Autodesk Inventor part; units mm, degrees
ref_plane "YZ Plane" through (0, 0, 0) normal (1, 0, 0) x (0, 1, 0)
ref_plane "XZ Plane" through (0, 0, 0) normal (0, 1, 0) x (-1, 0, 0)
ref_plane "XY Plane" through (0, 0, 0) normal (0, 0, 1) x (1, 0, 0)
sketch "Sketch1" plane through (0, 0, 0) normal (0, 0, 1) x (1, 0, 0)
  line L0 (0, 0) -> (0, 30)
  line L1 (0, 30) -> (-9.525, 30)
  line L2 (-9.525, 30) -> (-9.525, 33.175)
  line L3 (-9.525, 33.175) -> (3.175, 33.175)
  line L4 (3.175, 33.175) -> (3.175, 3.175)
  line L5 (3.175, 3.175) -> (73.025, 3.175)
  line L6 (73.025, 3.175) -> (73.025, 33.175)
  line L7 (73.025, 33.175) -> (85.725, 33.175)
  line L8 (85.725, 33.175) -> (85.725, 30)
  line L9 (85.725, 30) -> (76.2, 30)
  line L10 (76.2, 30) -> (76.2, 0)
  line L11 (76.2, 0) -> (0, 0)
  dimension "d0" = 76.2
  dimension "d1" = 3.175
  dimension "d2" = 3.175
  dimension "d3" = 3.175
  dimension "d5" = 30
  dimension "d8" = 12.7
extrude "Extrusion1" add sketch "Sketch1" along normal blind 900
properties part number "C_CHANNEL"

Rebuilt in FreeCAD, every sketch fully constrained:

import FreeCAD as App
import Part
import Sketcher
Q = App.Units.Quantity


def add_polygon(sketch, points):
    """Adds a closed chain of lines whose ends are joined by coincident constraints."""
    first, n = sketch.GeometryCount, len(points)
    for a, b in zip(points, points[1:] + points[:1]):
        sketch.addGeometry(Part.LineSegment(App.Vector(*a, 0), App.Vector(*b, 0)), False)
    for i in range(n):
        sketch.addConstraint(Sketcher.Constraint("Coincident", first + i, 2, first + (i + 1) % n, 1))

doc = App.newDocument("Part")
body = doc.addObject("PartDesign::Body", "Body")

sketch1 = body.newObject("Sketcher::SketchObject", "Sketch")
sketch1.AttachmentSupport = (doc.getObject("XY_Plane"), [""])
sketch1.MapMode = "FlatFace"
add_polygon(sketch1, [(0, 30), (0, 0), (76.2, 0), (76.2, 30), (85.725, 30), (85.725, 33.175), (73.025, 33.175), (73.025, 3.175), (3.175, 3.175), (3.175, 33.175), (-9.525, 33.175), (-9.525, 30)])
sketch1.addConstraint(Sketcher.Constraint("Vertical", 0))
sketch1.addConstraint(Sketcher.Constraint("Horizontal", 1))
sketch1.addConstraint(Sketcher.Constraint("Vertical", 2))
sketch1.addConstraint(Sketcher.Constraint("Horizontal", 3))
sketch1.addConstraint(Sketcher.Constraint("Vertical", 4))
sketch1.addConstraint(Sketcher.Constraint("Horizontal", 5))
sketch1.addConstraint(Sketcher.Constraint("Vertical", 6))
sketch1.addConstraint(Sketcher.Constraint("Horizontal", 7))
sketch1.addConstraint(Sketcher.Constraint("Vertical", 8))
sketch1.addConstraint(Sketcher.Constraint("Horizontal", 9))
sketch1.addConstraint(Sketcher.Constraint("Vertical", 10))
sketch1.addConstraint(Sketcher.Constraint("Horizontal", 11))
sketch1.addConstraint(Sketcher.Constraint("Coincident", 0, 2, -1, 1))
sketch1.addConstraint(Sketcher.Constraint("Horizontal", 5, 2, 8, 2))
sketch1.addConstraint(Sketcher.Constraint("Horizontal", 3, 2, 10, 2))
sketch1.addConstraint(Sketcher.Constraint("Equal", 5, 9))
sketch1.addConstraint(Sketcher.Constraint("Equal", 3, 11))
sketch1.addConstraint(Sketcher.Constraint("Equal", 2, 6))
sketch1.addConstraint(Sketcher.Constraint("DistanceX", 1, 1, 1, 2, Q("3 in")))
sketch1.addConstraint(Sketcher.Constraint("DistanceX", 5, 2, 5, 1, Q("0.5 in")))
sketch1.addConstraint(Sketcher.Constraint("DistanceY", 4, 1, 4, 2, Q("0.125 in")))
sketch1.addConstraint(Sketcher.Constraint("DistanceY", 0, 2, 0, 1, Q("1.1811 in")))
sketch1.addConstraint(Sketcher.Constraint("DistanceX", -1, 1, 7, 2, Q("0.125 in")))
pad1 = body.newObject("PartDesign::Pad", "Pad")
pad1.Profile = sketch1
pad1.Length = 900

doc.recompute()
